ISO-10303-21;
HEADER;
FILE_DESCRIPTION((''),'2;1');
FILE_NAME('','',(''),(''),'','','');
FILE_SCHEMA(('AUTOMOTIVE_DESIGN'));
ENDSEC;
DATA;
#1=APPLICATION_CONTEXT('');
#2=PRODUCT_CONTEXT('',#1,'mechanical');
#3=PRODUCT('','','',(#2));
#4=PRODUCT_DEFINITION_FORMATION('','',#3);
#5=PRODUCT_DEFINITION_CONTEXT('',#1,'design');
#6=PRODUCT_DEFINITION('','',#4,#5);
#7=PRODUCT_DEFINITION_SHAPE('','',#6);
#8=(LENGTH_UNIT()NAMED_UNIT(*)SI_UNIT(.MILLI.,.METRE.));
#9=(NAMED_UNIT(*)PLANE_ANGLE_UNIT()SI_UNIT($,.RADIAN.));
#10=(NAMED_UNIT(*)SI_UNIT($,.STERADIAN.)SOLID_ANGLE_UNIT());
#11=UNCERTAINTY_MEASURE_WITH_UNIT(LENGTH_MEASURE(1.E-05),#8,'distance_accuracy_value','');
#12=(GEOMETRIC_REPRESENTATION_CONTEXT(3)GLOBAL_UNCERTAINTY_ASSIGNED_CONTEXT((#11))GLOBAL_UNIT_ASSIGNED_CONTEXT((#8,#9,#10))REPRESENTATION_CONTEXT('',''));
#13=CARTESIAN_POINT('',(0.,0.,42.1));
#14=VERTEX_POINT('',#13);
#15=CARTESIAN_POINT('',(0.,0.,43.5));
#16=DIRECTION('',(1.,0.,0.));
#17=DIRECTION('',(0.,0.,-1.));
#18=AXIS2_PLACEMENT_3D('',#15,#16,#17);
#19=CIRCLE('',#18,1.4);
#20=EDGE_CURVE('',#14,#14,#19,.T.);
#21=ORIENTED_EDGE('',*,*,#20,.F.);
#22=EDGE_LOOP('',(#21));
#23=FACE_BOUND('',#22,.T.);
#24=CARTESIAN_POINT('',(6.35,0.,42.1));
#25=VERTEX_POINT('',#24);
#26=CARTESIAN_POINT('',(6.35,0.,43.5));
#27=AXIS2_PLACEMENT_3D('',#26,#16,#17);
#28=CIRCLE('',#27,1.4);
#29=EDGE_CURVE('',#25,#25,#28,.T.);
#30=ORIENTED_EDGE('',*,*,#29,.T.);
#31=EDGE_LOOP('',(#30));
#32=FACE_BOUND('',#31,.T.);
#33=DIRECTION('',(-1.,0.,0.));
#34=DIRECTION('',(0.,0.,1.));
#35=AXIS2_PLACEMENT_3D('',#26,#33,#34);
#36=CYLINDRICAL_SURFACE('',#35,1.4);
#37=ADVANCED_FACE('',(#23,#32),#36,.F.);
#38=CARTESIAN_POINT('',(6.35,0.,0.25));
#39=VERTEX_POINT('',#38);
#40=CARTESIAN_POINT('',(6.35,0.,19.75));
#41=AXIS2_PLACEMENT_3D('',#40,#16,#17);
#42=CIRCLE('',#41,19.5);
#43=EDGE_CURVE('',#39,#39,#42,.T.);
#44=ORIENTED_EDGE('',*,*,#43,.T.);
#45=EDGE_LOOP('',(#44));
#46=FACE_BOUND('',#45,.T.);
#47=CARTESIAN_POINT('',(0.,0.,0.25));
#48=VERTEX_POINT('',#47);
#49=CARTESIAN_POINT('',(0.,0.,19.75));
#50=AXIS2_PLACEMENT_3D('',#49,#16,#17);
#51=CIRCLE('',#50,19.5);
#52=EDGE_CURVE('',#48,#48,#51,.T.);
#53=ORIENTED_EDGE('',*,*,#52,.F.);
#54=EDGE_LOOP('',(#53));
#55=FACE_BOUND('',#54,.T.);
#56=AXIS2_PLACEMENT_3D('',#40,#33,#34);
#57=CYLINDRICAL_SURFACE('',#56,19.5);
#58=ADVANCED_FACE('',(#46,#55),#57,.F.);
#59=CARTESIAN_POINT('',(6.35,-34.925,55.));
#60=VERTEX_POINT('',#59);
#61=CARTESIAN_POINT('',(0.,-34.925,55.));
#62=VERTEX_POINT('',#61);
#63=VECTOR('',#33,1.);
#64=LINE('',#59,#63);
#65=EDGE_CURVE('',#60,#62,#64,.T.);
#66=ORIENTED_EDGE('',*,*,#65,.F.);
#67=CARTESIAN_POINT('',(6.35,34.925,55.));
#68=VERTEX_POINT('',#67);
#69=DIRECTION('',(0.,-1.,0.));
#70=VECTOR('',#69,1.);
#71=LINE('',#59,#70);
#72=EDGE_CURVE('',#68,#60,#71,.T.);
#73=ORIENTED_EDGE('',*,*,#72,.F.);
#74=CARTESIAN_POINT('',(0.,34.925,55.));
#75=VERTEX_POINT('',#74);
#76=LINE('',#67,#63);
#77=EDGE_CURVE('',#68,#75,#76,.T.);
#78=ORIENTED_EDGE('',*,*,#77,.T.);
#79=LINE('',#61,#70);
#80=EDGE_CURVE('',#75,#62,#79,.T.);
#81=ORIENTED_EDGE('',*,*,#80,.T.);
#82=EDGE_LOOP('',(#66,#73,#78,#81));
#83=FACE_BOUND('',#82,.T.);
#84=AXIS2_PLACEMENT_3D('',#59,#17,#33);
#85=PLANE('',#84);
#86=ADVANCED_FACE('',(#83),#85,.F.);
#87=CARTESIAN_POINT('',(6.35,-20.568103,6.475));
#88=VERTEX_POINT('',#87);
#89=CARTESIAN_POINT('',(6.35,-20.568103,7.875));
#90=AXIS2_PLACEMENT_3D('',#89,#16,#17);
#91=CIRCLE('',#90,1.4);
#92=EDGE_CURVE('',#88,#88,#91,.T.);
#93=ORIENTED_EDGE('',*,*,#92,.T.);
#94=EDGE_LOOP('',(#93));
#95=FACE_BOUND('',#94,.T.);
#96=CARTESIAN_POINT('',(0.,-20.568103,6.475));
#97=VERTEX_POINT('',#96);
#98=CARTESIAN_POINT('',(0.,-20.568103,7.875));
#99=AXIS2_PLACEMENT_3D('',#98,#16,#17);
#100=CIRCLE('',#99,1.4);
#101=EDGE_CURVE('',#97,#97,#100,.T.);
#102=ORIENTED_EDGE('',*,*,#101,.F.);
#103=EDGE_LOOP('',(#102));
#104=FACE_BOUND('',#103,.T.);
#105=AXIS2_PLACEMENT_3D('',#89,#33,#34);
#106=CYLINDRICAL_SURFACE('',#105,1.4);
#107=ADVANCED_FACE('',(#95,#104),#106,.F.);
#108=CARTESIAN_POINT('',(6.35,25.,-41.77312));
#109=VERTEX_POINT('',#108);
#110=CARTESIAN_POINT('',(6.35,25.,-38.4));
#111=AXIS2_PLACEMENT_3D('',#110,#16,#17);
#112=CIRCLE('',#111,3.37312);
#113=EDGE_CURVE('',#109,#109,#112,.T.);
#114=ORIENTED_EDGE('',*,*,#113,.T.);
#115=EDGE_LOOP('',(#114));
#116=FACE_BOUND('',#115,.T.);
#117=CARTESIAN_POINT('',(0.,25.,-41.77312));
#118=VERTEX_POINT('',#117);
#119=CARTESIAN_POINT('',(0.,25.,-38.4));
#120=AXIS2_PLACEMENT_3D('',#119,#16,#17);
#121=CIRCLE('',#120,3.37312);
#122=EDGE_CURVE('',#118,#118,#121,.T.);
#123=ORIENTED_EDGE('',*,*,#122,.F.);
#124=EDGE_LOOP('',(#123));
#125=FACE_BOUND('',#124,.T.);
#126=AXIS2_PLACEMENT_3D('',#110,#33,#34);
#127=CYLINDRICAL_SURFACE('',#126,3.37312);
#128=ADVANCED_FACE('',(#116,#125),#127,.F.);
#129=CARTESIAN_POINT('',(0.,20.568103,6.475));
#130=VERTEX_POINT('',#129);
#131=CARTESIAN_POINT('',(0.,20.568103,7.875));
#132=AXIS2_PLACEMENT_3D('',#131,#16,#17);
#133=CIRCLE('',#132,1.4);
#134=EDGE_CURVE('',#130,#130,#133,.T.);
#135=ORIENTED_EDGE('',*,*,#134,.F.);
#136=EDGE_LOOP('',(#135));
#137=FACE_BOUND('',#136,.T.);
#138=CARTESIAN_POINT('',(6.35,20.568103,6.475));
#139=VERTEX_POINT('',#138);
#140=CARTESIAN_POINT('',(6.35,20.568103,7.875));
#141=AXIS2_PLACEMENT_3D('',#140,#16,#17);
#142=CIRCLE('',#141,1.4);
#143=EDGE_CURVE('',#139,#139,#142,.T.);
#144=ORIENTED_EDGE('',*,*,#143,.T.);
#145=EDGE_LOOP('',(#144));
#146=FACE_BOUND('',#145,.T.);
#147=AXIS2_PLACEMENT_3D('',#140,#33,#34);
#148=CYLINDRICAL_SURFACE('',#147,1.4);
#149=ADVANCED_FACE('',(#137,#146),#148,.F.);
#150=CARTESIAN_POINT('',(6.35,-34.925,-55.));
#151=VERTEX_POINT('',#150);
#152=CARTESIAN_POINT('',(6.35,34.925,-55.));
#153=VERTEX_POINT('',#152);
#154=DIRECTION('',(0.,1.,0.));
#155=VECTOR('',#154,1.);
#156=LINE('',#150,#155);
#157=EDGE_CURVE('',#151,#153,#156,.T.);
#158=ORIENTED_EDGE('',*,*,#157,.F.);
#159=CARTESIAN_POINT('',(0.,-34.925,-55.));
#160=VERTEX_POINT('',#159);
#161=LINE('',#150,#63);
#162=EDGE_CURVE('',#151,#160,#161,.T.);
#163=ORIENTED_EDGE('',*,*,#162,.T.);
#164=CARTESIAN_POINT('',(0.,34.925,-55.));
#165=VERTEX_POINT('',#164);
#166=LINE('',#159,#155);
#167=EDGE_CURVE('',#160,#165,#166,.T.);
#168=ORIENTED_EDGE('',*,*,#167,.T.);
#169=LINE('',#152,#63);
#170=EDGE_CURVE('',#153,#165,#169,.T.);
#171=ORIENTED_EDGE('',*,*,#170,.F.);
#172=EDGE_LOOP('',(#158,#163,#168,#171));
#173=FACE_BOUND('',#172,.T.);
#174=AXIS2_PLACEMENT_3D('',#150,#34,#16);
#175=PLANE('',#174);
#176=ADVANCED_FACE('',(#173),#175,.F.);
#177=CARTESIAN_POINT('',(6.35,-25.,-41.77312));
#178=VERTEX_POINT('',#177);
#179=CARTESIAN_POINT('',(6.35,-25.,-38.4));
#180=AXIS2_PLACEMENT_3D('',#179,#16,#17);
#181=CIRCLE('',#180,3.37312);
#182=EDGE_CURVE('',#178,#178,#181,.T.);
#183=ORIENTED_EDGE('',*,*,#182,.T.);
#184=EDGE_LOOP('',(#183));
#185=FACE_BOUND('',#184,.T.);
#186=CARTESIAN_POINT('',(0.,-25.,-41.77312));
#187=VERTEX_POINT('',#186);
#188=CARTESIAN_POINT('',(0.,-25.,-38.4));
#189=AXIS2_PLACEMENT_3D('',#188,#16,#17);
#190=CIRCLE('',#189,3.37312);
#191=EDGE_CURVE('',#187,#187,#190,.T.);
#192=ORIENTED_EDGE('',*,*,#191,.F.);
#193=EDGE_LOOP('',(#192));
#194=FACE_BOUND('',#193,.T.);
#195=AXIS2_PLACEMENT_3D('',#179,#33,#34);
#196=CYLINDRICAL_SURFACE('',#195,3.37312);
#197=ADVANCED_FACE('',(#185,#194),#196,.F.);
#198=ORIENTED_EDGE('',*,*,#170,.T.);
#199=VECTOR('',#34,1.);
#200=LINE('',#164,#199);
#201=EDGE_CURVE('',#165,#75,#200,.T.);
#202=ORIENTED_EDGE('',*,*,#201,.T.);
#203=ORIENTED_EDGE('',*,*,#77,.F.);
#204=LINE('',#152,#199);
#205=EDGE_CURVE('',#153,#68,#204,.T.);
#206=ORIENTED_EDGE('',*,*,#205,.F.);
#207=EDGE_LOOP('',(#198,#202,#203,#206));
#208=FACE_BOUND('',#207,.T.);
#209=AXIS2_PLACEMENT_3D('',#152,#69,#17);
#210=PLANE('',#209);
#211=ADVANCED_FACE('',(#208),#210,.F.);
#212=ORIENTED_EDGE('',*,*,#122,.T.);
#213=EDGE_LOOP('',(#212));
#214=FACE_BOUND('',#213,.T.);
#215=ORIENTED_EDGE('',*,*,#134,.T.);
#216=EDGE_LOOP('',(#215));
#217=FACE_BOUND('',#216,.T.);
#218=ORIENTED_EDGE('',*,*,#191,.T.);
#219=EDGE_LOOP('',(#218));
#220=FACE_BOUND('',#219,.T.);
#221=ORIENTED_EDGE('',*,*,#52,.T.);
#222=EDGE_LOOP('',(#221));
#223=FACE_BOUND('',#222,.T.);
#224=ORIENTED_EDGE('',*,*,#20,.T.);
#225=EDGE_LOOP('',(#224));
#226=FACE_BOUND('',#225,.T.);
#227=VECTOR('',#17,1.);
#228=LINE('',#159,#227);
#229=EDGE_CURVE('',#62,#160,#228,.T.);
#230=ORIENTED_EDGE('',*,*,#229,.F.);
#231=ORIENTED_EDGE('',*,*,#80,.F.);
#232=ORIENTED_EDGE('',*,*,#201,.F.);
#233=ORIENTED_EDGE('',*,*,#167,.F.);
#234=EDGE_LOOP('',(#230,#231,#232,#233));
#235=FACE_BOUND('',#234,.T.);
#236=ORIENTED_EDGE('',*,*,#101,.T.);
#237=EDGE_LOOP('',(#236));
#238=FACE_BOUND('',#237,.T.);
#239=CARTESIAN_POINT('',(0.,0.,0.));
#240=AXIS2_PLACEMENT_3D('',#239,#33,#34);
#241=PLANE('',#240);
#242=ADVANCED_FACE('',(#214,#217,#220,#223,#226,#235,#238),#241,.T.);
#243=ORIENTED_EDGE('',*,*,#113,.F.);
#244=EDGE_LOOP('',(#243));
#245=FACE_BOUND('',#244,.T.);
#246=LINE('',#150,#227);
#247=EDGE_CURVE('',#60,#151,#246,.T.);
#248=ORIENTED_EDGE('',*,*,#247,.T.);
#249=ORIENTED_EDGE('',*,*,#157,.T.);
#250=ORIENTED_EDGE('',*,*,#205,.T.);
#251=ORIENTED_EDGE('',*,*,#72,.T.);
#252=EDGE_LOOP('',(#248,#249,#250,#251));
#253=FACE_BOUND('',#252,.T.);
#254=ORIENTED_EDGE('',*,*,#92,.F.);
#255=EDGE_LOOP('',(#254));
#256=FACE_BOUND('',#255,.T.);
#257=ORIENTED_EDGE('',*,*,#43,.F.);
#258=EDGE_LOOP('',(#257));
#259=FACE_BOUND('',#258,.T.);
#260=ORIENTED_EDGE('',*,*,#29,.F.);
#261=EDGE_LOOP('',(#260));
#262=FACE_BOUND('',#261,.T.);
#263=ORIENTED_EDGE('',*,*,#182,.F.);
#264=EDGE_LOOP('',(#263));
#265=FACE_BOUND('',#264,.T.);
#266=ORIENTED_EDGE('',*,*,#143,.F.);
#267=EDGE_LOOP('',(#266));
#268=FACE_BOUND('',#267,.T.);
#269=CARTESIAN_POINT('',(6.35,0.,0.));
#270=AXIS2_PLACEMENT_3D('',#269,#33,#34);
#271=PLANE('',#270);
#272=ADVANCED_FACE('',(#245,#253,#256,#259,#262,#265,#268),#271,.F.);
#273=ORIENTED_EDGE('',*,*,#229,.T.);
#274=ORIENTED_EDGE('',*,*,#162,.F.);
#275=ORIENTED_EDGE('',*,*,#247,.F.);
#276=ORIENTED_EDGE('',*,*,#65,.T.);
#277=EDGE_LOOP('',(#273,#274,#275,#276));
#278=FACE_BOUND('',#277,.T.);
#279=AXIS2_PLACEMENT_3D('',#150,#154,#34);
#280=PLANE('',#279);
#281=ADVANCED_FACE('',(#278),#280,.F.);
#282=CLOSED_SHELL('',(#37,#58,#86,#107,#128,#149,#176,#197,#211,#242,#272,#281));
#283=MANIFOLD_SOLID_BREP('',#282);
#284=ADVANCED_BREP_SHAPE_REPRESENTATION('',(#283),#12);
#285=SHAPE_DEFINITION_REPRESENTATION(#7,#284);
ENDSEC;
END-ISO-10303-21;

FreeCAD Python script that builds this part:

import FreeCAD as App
import Part
import Sketcher
Q = App.Units.Quantity

doc = App.newDocument("Part")
params = doc.addObject("Spreadsheet::Sheet", "Params")
for row, (alias, value) in enumerate([
    ("sketch1_diameter", "39 mm"),
    ("sketch1_diameter2", "2.8 mm"),
    ("sketch1_height", "110 mm"),
    ("sketch1_width", "69.85 mm"),
    ("pad1_length", "6.35 mm"),
], start=1):
    params.set(f"A{row}", alias)
    params.set(f"B{row}", "=" + value)
    params.setAlias(f"B{row}", alias)

body = doc.addObject("PartDesign::Body", "Body")

sketch1 = doc.addObject("Sketcher::SketchObject", "Sketch")
body.addObject(sketch1)
sketch1.AttachmentSupport = (doc.YZ_Plane, [""])
sketch1.MapMode = "FlatFace"
sketch1.addGeometry(Part.LineSegment(App.Vector(-34.9, 55, 0), App.Vector(-34.9, -55, 0)), False)
sketch1.addGeometry(Part.LineSegment(App.Vector(-34.9, -55, 0), App.Vector(34.9, -55, 0)), False)
sketch1.addGeometry(Part.LineSegment(App.Vector(34.9, -55, 0), App.Vector(34.9, 55, 0)), False)
sketch1.addGeometry(Part.LineSegment(App.Vector(34.9, 55, 0), App.Vector(-34.9, 55, 0)), False)
sketch1.addGeometry(Part.Circle(App.Vector(-25, -38.4, 0), App.Vector(0, 0, 1), 3.4), False)
sketch1.addGeometry(Part.Circle(App.Vector(25, -38.4, 0), App.Vector(0, 0, 1), 3.4), False)
sketch1.addGeometry(Part.Circle(App.Vector(-20.6, 7.9, 0), App.Vector(0, 0, 1), 1.4), False)
sketch1.addGeometry(Part.Circle(App.Vector(0, 19.8, 0), App.Vector(0, 0, 1), 19.5), False)
sketch1.addGeometry(Part.Circle(App.Vector(20.6, 7.9, 0), App.Vector(0, 0, 1), 1.4), False)
sketch1.addGeometry(Part.Circle(App.Vector(0, 43.5, 0), App.Vector(0, 0, 1), 1.4), False)
sketch1.addConstraint(Sketcher.Constraint("Coincident", 0, 2, 1, 1))
sketch1.addConstraint(Sketcher.Constraint("Coincident", 1, 2, 2, 1))
sketch1.addConstraint(Sketcher.Constraint("Coincident", 2, 2, 3, 1))
sketch1.addConstraint(Sketcher.Constraint("Coincident", 3, 2, 0, 1))
sketch1.addConstraint(Sketcher.Constraint("Vertical", 0))
sketch1.addConstraint(Sketcher.Constraint("Horizontal", 1))
sketch1.addConstraint(Sketcher.Constraint("Vertical", 2))
sketch1.addConstraint(Sketcher.Constraint("Horizontal", 3))
sketch1.addConstraint(Sketcher.Constraint("Equal", 4, 5))
sketch1.addConstraint(Sketcher.Constraint("Equal", 6, 8))
sketch1.addConstraint(Sketcher.Constraint("Equal", 8, 9))
sketch1.addConstraint(Sketcher.Constraint("Symmetric", 0, 2, 2, 2, -1, 1))
sketch1.addConstraint(Sketcher.Constraint("Symmetric", 4, 3, 5, 3, -2))
sketch1.addConstraint(Sketcher.Constraint("Symmetric", 6, 3, 8, 3, -2))
sketch1.addConstraint(Sketcher.Constraint("PointOnObject", 7, 3, -2))
sketch1.addConstraint(Sketcher.Constraint("PointOnObject", 9, 3, -2))
sketch1.addConstraint(Sketcher.Constraint("Diameter", 7, Q("39 mm")))
sketch1.addConstraint(Sketcher.Constraint("Diameter", 6, Q("2.8 mm")))
sketch1.addConstraint(Sketcher.Constraint("DistanceY", 0, 2, 0, 1, Q("110 mm")))
sketch1.addConstraint(Sketcher.Constraint("DistanceX", 4, 3, -1, 1, Q("25 mm")))
sketch1.addConstraint(Sketcher.Constraint("DistanceX", 1, 1, 1, 2, Q("69.85 mm")))
sketch1.addConstraint(Sketcher.Constraint("DistanceY", 4, 3, -1, 1, Q("38.4 mm")))
sketch1.addConstraint(Sketcher.Constraint("DistanceY", -1, 1, 9, 3, Q("43.5 mm")))
sketch1.addConstraint(Sketcher.Constraint("Diameter", 4, Q("6.74624 mm")))
sketch1.addConstraint(Sketcher.Constraint("DistanceY", -1, 1, 7, 3, Q("19.75 mm")))
sketch1.addConstraint(Sketcher.Constraint("DistanceY", -1, 1, 6, 3, Q("7.875 mm")))
sketch1.addConstraint(Sketcher.Constraint("DistanceX", 6, 3, -1, 1, Q("20.568103 mm")))
sketch1.setExpression("Constraints[16]", "Params.sketch1_diameter")
sketch1.setExpression("Constraints[17]", "Params.sketch1_diameter2")
sketch1.setExpression("Constraints[18]", "Params.sketch1_height")
sketch1.setExpression("Constraints[20]", "Params.sketch1_width")
pad1 = doc.addObject("PartDesign::Pad", "Pad")
body.addObject(pad1)
pad1.Profile = sketch1
pad1.setExpression("Length", "Params.pad1_length")

doc.recompute()
